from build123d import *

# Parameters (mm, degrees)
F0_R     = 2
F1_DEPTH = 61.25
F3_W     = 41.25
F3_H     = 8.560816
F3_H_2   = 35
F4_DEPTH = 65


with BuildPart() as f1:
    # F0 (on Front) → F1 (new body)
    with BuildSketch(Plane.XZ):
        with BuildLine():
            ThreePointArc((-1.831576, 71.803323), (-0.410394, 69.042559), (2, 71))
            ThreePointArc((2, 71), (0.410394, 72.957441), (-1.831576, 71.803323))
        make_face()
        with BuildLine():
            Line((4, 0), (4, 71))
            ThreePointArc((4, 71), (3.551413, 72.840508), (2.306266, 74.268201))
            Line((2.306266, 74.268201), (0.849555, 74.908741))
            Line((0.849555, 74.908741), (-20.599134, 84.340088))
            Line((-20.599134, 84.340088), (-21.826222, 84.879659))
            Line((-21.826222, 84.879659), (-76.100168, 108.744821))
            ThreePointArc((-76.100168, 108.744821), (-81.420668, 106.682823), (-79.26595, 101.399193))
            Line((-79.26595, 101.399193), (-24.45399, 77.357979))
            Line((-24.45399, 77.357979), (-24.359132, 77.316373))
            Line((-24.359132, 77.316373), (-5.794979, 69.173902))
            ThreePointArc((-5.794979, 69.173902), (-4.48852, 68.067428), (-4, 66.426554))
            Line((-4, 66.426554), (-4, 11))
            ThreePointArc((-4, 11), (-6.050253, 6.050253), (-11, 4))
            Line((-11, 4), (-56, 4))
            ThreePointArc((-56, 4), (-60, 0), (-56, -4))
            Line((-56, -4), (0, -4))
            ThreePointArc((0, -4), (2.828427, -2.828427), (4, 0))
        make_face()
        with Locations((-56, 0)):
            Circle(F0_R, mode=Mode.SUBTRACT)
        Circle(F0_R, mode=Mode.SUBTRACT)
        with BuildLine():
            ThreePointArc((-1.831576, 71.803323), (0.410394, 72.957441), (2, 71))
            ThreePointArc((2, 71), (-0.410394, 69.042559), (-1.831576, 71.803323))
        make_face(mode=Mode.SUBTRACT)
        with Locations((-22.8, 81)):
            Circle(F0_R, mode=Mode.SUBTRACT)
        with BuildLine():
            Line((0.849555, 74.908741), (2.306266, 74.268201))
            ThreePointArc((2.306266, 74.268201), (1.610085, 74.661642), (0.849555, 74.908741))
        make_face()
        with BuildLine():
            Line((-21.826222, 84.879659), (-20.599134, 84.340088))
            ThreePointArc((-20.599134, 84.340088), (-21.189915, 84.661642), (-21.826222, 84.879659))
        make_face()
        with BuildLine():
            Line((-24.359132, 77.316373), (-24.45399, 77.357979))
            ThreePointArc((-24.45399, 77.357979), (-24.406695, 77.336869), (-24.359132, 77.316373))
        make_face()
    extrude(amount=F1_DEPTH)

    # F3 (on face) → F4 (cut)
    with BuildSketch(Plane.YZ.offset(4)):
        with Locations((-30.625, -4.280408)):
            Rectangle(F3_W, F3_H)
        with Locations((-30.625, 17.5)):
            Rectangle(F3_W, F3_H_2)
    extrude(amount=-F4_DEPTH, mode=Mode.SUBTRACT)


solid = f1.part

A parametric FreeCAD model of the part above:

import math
import FreeCAD as App
import Part
import Sketcher

V = App.Vector
Q = App.Units.Quantity

doc = App.newDocument("Part")
body = doc.addObject("PartDesign::Body", "Body")

# Sketch on XZ plane
sketch1 = body.newObject("Sketcher::SketchObject", "Sketch")
sketch1.AttachmentSupport = (doc.getObject("XZ_Plane"), [""])
sketch1.MapMode = "FlatFace"
sketch1.addGeometry([
    Part.LineSegment(V(4, 0, 0), V(4, 71, 0)),  # 0
    Part.ArcOfCircle(Part.Circle(V(0.000004, 71.000002, 0), V(0, 0, 1), 3.999996), math.radians(-0.000028), math.radians(54.790618)),  # 1
    Part.ArcOfCircle(Part.Circle(V(-0.000011, 70.999975, 0), V(0, 0, 1), 4.000027), math.radians(54.790674), math.radians(77.737548)),  # 2
    Part.LineSegment(V(0.849555, 74.908741, 0), V(-20.599134, 84.340088, 0)),  # 3
    Part.ArcOfCircle(Part.Circle(V(-22.800008, 80.99998, 0), V(0, 0, 1), 4.000021), math.radians(56.618191), math.radians(75.910028)),  # 4
    Part.LineSegment(V(-21.826222, 84.879659, 0), V(-76.100168, 108.744821, 0)),  # 5
    Part.ArcOfCircle(Part.Circle(V(-77.747292, 105.09969, 0), V(0, 0, 1), 4), math.radians(65.68323), math.radians(247.687102)),  # 6
    Part.LineSegment(V(-79.26595, 101.399193, 0), V(-24.45399, 77.357979, 0)),  # 7
    Part.ArcOfCircle(Part.Circle(V(-22.79842, 81.003594, 0), V(0, 0, 1), 4.003926), math.radians(-114.424045), math.radians(-112.941765)),  # 8
    Part.LineSegment(V(-24.359132, 77.316373, 0), V(-5.794979, 69.173902, 0)),  # 9
    Part.ArcOfCircle(Part.Circle(V(-6.999999, 66.426554, 0), V(0, 0, 1), 2.999999), math.radians(-0.000002), math.radians(66.317164)),  # 10
    Part.LineSegment(V(-4, 66.426554, 0), V(-4, 11, 0)),  # 11
    Part.ArcOfCircle(Part.Circle(V(-11.000002, 11.000002, 0), V(0, 0, 1), 7.000002), math.radians(-89.999987), math.radians(-0.000013)),  # 12
    Part.LineSegment(V(-11, 4, 0), V(-56, 4, 0)),  # 13
    Part.ArcOfCircle(Part.Circle(V(-56, 0, 0), V(0, 0, 1), 4), math.radians(90), math.radians(270)),  # 14
    Part.LineSegment(V(-56, -4, 0), V(0, -4, 0)),  # 15
    Part.ArcOfCircle(Part.Circle(V(0, 0, 0), V(0, 0, 1), 4), math.radians(-89.999994), math.radians(-0.000006)),  # 16
    Part.Circle(V(-56, 0, 0), V(0, 0, 1), 2),  # 17
    Part.Circle(V(0, 0, 0), V(0, 0, 1), 2),  # 18
    Part.Circle(V(-22.8, 81, 0), V(0, 0, 1), 2),  # 19
    Part.ArcOfCircle(Part.Circle(V(0, 71, 0), V(0, 0, 1), 2), math.radians(156.317913), math.radians(359.999997)),  # 20
    Part.ArcOfCircle(Part.Circle(V(0, 71, 0), V(0, 0, 1), 2), math.radians(0.000008), math.radians(156.317902)),  # 21
], False)
sketch1.addConstraint([
    Sketcher.Constraint("Coincident", 0, 2, 1, 1),
    Sketcher.Constraint("Coincident", 1, 2, 2, 1),
    Sketcher.Constraint("Coincident", 2, 2, 3, 1),
    Sketcher.Constraint("Coincident", 3, 2, 4, 1),
    Sketcher.Constraint("Coincident", 4, 2, 5, 1),
    Sketcher.Constraint("Coincident", 5, 2, 6, 1),
    Sketcher.Constraint("Coincident", 6, 2, 7, 1),
    Sketcher.Constraint("Coincident", 7, 2, 8, 1),
    Sketcher.Constraint("Coincident", 8, 2, 9, 1),
    Sketcher.Constraint("Coincident", 9, 2, 10, 2),
    Sketcher.Constraint("Coincident", 10, 1, 11, 1),
    Sketcher.Constraint("Coincident", 11, 2, 12, 2),
    Sketcher.Constraint("Coincident", 12, 1, 13, 1),
    Sketcher.Constraint("Coincident", 13, 2, 14, 1),
    Sketcher.Constraint("Coincident", 14, 2, 15, 1),
    Sketcher.Constraint("Coincident", 15, 2, 16, 1),
    Sketcher.Constraint("Coincident", 16, 2, 0, 1),
    Sketcher.Constraint("Coincident", 20, 1, 21, 2),
    Sketcher.Constraint("Coincident", 21, 1, 20, 2),
    Sketcher.Constraint("Vertical", 0),
    Sketcher.Constraint("Vertical", 11),
    Sketcher.Constraint("Horizontal", 13),
    Sketcher.Constraint("Horizontal", 15),
    Sketcher.Constraint("Coincident", 16, 3, -1, 1),
    Sketcher.Constraint("Coincident", 18, 3, -1, 1),
    Sketcher.Constraint("Coincident", 17, 3, 14, 3),
    Sketcher.Constraint("Coincident", 20, 3, 1, 3),
    Sketcher.Constraint("PointOnObject", 14, 3, -1),
    Sketcher.Constraint("PointOnObject", 20, 3, -2),
    Sketcher.Constraint("PointOnObject", 21, 3, -2),
    Sketcher.Constraint("PointOnObject", 15, 2, -2),
    Sketcher.Constraint("PointOnObject", 16, 2, -1),
    Sketcher.Constraint("Diameter", 17, Q("4 mm")),
    Sketcher.Constraint("Diameter", 18, Q("4 mm")),
    Sketcher.Constraint("Diameter", 19, Q("4 mm")),
    Sketcher.Constraint("Radius", 6, Q("4 mm")),
    Sketcher.Constraint("Radius", 10, Q("2.999999 mm")),
    Sketcher.Constraint("Radius", 12, Q("7.000002 mm")),
    Sketcher.Constraint("Radius", 14, Q("4 mm")),
    Sketcher.Constraint("Radius", 20, Q("2 mm")),
    Sketcher.Constraint("DistanceX", 13, 2, 13, 1, Q("45 mm")),
    Sketcher.Constraint("DistanceX", 15, 1, 15, 2, Q("56 mm")),
    Sketcher.Constraint("DistanceY", 0, 1, 0, 2, Q("71 mm")),
    Sketcher.Constraint("DistanceY", -1, 1, 1, 3, Q("71.000002 mm")),
    Sketcher.Constraint("DistanceX", 10, 3, -1, 1, Q("6.999999 mm")),
    Sketcher.Constraint("DistanceX", 14, 3, -1, 1, Q("56 mm")),
    Sketcher.Constraint("DistanceY", -1, 1, 19, 3, Q("81 mm")),
    Sketcher.Constraint("DistanceY", -1, 1, 11, 2, Q("11 mm")),
    Sketcher.Constraint("DistanceX", 12, 1, -1, 1, Q("11 mm")),
    Sketcher.Constraint("DistanceY", -1, 1, 21, 1, Q("71 mm")),
    Sketcher.Constraint("DistanceX", 19, 3, -1, 1, Q("22.8 mm")),
    Sketcher.Constraint("Radius", 4, Q("4.000021 mm")),
    Sketcher.Constraint("Radius", 2, Q("4.000027 mm")),
    Sketcher.Constraint("Radius", 8, Q("4.003926 mm")),
    Sketcher.Constraint("DistanceY", 7, 2, 4, 3, Q("3.642001 mm")),
    Sketcher.Constraint("DistanceY", -1, 1, 1, 2, Q("74.268201 mm")),
    Sketcher.Constraint("DistanceY", -1, 1, 9, 2, Q("69.173902 mm")),
    Sketcher.Constraint("DistanceX", 8, 3, 4, 2, Q("0.972198 mm")),
    Sketcher.Constraint("Distance", 9, Q("20.27135 mm")),
    Sketcher.Constraint("DistanceY", 11, 2, 11, 1, Q("55.426554 mm")),
    Sketcher.Constraint("DistanceX", 4, 3, -1, 1, Q("22.800008 mm")),
    Sketcher.Constraint("DistanceY", -1, 1, 4, 3, Q("80.99998 mm")),
    Sketcher.Constraint("DistanceY", -1, 1, 6, 3, Q("105.09969 mm")),
    Sketcher.Constraint("DistanceX", 8, 3, -1, 1, Q("22.79842 mm")),
    Sketcher.Constraint("DistanceY", -1, 1, 2, 2, Q("74.908741 mm")),
    Sketcher.Constraint("DistanceY", -1, 1, 5, 2, Q("108.744821 mm")),
    Sketcher.Constraint("DistanceX", 6, 2, -1, 1, Q("79.26595 mm")),
    Sketcher.Constraint("DistanceX", 7, 2, -1, 1, Q("24.45399 mm")),
    Sketcher.Constraint("DistanceX", 8, 2, -1, 1, Q("24.359132 mm")),
    Sketcher.Constraint("DistanceX", 6, 3, 2, 3, Q("77.747281 mm")),
    Sketcher.Constraint("DistanceX", 8, 3, 2, 3, Q("22.798409 mm")),
    Sketcher.Constraint("DistanceX", 3, 2, 2, 2, Q("21.448689 mm")),
    Sketcher.Constraint("DistanceY", 2, 3, 20, 1, Q("0.803348 mm")),
])
pad1 = body.newObject("PartDesign::Pad", "Pad")
pad1.Profile = sketch1
pad1.Length = 61.25

# Sketch on YZ plane
sketch2 = body.newObject("Sketcher::SketchObject", "Sketch001")
sketch2.AttachmentSupport = (doc.getObject("YZ_Plane"), [""])
sketch2.MapMode = "FlatFace"
sketch2.AttachmentOffset = App.Placement(V(0, 0, 4), App.Rotation())
sketch2.addGeometry([
    Part.LineSegment(V(-51, -9, 0), V(-10, -9, 0)),
    Part.LineSegment(V(-10, -9, 0), V(-10, 35, 0)),
    Part.LineSegment(V(-10, 35, 0), V(-51, 35, 0)),
    Part.LineSegment(V(-51, 35, 0), V(-51, -9, 0)),
], False)
sketch2.addConstraint([
    Sketcher.Constraint("Coincident", 0, 2, 1, 1),
    Sketcher.Constraint("Coincident", 1, 2, 2, 1),
    Sketcher.Constraint("Coincident", 2, 2, 3, 1),
    Sketcher.Constraint("Coincident", 3, 2, 0, 1),
    Sketcher.Constraint("Horizontal", 0),
    Sketcher.Constraint("Vertical", 1),
    Sketcher.Constraint("Horizontal", 2),
    Sketcher.Constraint("Vertical", 3),
    Sketcher.Constraint("DistanceX", 0, 2, -1, 1, Q("10 mm")),
    Sketcher.Constraint("DistanceY", -1, 1, 1, 2, Q("35 mm")),
    Sketcher.Constraint("DistanceX", 0, 1, 0, 2, Q("41.25 mm")),
    Sketcher.Constraint("DistanceY", 1, 1, 1, 2, Q("43.560816 mm")),
])
pocket1 = body.newObject("PartDesign::Pocket", "Pocket")
pocket1.Profile = sketch2
pocket1.Length = 65

doc.recompute()
